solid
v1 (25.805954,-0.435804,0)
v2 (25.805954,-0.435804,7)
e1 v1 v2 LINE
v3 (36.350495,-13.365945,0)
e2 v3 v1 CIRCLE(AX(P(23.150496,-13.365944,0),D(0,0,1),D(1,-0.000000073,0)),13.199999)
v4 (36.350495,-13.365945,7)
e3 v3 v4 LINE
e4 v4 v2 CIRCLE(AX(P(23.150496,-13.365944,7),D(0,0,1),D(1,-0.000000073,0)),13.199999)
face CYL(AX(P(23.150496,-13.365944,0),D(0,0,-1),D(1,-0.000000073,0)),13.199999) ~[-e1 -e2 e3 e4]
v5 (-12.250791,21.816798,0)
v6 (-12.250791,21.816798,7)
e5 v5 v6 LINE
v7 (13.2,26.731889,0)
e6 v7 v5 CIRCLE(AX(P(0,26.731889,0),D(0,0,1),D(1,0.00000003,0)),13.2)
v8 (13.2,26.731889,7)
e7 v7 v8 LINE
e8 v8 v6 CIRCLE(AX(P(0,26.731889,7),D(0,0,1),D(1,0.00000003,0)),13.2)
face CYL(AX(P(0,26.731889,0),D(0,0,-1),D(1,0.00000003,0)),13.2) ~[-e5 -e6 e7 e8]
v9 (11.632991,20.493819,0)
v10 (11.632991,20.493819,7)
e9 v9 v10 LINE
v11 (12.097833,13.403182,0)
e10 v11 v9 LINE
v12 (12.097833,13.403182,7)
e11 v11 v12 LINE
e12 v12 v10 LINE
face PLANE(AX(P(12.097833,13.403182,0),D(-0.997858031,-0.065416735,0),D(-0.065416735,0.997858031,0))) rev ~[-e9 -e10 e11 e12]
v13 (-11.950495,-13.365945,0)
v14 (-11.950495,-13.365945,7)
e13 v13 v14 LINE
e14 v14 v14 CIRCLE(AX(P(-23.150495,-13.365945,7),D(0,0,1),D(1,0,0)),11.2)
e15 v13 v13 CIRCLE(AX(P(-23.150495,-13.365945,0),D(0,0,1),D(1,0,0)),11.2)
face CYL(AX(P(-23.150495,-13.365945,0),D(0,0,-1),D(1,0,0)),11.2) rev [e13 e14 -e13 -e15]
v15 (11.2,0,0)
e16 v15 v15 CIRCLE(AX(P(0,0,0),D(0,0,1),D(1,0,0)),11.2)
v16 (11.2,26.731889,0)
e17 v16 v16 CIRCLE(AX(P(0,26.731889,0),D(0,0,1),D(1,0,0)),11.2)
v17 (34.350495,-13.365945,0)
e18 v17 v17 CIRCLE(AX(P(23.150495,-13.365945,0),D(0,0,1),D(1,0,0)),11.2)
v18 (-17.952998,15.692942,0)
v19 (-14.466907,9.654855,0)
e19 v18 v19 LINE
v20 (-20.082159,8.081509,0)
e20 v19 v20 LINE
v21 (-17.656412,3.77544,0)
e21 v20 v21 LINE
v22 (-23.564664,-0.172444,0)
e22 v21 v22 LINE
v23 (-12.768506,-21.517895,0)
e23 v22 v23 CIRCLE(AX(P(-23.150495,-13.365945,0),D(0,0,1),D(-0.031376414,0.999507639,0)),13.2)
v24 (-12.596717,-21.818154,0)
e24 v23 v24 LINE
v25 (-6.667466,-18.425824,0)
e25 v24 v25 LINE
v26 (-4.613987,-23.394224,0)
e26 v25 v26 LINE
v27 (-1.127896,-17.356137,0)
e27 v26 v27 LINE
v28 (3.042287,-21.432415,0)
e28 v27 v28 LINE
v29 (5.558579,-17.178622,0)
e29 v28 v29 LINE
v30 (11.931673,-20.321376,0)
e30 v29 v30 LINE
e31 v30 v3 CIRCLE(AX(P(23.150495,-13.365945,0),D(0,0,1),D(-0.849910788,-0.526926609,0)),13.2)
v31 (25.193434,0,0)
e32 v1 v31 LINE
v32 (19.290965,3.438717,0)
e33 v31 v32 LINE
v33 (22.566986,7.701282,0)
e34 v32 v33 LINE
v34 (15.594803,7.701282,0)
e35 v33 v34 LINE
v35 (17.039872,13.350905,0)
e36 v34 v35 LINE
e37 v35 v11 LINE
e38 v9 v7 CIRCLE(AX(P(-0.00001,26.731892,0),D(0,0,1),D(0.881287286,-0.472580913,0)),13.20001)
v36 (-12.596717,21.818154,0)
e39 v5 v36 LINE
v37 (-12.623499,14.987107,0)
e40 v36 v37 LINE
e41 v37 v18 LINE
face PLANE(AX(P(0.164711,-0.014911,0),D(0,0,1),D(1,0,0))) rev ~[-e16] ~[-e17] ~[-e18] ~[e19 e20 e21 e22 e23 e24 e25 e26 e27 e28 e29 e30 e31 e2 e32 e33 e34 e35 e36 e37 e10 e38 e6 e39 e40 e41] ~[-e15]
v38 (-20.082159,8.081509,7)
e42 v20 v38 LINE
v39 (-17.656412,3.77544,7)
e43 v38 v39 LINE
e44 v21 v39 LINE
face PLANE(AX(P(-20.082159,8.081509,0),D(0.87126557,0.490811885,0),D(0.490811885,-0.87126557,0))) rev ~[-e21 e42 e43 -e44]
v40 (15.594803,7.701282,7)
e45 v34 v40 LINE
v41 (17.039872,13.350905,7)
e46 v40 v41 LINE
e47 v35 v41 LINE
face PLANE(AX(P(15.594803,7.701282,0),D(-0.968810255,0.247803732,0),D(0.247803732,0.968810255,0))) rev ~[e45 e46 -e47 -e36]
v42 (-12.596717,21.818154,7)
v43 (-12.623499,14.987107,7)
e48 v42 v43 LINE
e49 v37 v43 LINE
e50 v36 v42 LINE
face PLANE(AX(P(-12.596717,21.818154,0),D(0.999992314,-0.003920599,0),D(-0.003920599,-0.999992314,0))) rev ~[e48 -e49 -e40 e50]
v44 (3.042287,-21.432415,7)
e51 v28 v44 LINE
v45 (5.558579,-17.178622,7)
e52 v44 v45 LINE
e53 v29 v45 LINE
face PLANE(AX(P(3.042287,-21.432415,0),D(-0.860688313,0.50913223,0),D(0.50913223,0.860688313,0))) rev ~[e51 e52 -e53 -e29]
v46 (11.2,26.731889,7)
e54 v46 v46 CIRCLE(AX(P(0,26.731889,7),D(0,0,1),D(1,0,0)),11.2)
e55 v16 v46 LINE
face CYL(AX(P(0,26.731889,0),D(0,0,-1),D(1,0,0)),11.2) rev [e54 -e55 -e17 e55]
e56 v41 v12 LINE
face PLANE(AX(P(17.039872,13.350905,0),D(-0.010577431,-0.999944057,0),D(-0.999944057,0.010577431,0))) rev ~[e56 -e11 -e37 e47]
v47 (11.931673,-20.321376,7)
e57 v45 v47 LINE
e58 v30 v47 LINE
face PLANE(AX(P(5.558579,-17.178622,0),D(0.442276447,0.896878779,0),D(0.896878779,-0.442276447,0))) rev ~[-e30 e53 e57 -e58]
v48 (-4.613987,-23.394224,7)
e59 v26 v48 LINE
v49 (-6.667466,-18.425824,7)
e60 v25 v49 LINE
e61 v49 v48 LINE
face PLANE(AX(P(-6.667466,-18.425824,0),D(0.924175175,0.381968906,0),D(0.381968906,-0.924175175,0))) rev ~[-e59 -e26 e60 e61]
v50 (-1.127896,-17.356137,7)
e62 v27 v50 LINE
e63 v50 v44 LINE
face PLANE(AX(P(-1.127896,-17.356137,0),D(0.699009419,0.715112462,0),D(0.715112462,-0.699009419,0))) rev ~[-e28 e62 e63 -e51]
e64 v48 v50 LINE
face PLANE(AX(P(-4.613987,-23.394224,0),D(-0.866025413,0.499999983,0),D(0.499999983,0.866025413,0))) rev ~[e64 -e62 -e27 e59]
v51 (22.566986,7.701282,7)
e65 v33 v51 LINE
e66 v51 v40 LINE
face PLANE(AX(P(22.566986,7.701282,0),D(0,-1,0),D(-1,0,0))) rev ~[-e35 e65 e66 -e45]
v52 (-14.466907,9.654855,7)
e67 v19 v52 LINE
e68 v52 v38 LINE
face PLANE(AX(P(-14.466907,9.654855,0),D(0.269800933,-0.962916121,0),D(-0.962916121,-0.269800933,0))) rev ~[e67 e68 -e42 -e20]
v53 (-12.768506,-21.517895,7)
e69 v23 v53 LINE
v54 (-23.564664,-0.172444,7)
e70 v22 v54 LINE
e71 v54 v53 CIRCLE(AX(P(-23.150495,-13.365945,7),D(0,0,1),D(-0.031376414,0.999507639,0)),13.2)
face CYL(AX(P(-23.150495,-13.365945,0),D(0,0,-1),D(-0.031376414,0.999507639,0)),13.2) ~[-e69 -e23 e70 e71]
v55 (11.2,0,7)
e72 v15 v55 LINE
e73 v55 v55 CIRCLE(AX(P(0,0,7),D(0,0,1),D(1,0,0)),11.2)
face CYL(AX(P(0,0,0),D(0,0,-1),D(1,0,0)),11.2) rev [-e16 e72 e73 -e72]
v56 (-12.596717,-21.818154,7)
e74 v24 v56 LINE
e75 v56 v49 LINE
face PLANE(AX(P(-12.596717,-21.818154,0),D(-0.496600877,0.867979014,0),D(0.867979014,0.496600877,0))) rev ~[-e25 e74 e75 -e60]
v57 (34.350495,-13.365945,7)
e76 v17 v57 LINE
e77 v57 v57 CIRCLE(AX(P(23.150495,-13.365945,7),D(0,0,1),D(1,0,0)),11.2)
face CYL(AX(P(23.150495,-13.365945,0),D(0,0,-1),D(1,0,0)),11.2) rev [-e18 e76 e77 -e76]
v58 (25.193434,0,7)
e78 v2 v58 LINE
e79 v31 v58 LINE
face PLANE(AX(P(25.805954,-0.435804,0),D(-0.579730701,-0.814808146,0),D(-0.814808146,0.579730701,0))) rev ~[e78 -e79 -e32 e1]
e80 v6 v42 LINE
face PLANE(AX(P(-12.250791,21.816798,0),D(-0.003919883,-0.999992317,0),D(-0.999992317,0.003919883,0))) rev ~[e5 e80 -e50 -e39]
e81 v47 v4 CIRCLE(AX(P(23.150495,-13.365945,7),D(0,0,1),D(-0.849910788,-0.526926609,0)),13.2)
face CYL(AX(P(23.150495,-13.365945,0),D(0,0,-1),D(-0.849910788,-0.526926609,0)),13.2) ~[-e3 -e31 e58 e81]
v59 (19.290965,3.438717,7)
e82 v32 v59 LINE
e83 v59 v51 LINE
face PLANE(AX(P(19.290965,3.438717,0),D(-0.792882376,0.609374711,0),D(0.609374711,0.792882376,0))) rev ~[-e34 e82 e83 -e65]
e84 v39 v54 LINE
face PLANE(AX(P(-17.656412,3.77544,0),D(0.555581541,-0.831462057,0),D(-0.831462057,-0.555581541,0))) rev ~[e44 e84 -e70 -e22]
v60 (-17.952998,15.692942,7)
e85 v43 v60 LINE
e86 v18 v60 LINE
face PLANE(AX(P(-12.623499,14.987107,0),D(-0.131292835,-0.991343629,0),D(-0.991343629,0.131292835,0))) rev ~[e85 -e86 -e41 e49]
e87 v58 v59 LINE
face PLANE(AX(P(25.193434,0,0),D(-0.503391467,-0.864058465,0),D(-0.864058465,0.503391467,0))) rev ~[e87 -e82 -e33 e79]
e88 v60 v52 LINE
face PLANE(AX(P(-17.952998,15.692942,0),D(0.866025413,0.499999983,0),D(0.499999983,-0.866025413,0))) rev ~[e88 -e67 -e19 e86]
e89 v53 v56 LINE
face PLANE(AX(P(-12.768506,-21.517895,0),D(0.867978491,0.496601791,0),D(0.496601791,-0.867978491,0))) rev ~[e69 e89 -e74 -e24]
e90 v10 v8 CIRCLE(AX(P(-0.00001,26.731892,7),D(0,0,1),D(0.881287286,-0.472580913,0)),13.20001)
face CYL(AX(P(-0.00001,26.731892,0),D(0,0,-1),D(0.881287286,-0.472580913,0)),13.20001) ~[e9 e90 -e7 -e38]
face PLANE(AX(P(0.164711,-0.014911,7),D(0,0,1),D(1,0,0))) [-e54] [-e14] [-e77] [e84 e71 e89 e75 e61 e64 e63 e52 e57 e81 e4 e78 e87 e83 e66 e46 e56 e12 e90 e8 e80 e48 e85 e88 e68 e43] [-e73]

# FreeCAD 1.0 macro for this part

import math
import FreeCAD as App
import Part
import Sketcher

doc = App.newDocument("Part")
body = doc.addObject("PartDesign::Body", "Body")

sketch1 = body.newObject("Sketcher::SketchObject", "Sketch")
sketch1.AttachmentSupport = (doc.getObject("XY_Plane"), [""])
sketch1.MapMode = "FlatFace"
sketch1.addGeometry([
    Part.LineSegment(App.Vector(12.097833, 13.403182, 0), App.Vector(11.632991, 20.493819, 0)),
    Part.ArcOfCircle(Part.Circle(App.Vector(-0.00001, 26.731892, 0), App.Vector(0, 0, 1), 13.20001), math.radians(-28.20196), math.radians(-0.000012)),
    Part.ArcOfCircle(Part.Circle(App.Vector(0, 26.731889, 0), App.Vector(0, 0, 1), 13.2), math.radians(0.000002), math.radians(201.860951)),
    Part.LineSegment(App.Vector(-12.250791, 21.816798, 0), App.Vector(-12.596717, 21.818154, 0)),
    Part.LineSegment(App.Vector(-12.596717, 21.818154, 0), App.Vector(-12.623499, 14.987107, 0)),
    Part.LineSegment(App.Vector(-12.623499, 14.987107, 0), App.Vector(-17.952998, 15.692942, 0)),
    Part.LineSegment(App.Vector(-17.952998, 15.692942, 0), App.Vector(-14.466907, 9.654855, 0)),
    Part.LineSegment(App.Vector(-14.466907, 9.654855, 0), App.Vector(-20.082159, 8.081509, 0)),
    Part.LineSegment(App.Vector(-20.082159, 8.081509, 0), App.Vector(-17.656412, 3.77544, 0)),
    Part.LineSegment(App.Vector(-17.656412, 3.77544, 0), App.Vector(-23.564664, -0.172444, 0)),
    Part.ArcOfCircle(Part.Circle(App.Vector(-23.150495, -13.365945, 0), App.Vector(0, 0, 1), 13.2), math.radians(91.798031), math.radians(321.860955)),
    Part.LineSegment(App.Vector(-12.768506, -21.517895, 0), App.Vector(-12.596717, -21.818154, 0)),
    Part.LineSegment(App.Vector(-12.596717, -21.818154, 0), App.Vector(-6.667466, -18.425824, 0)),
    Part.LineSegment(App.Vector(-6.667466, -18.425824, 0), App.Vector(-4.613987, -23.394224, 0)),
    Part.LineSegment(App.Vector(-4.613987, -23.394224, 0), App.Vector(-1.127896, -17.356137, 0)),
    Part.LineSegment(App.Vector(-1.127896, -17.356137, 0), App.Vector(3.042287, -21.432415, 0)),
    Part.LineSegment(App.Vector(3.042287, -21.432415, 0), App.Vector(5.558579, -17.178622, 0)),
    Part.LineSegment(App.Vector(5.558579, -17.178622, 0), App.Vector(11.931673, -20.321376, 0)),
    Part.ArcOfCircle(Part.Circle(App.Vector(23.150495, -13.365945, 0), App.Vector(0, 0, 1), 13.2), math.radians(-148.201968), math.radians(-0.000001)),
    Part.ArcOfCircle(Part.Circle(App.Vector(23.150496, -13.365944, 0), App.Vector(0, 0, 1), 13.199999), math.radians(-0.000004), math.radians(78.39455)),
    Part.LineSegment(App.Vector(25.805954, -0.435804, 0), App.Vector(25.193434, 0, 0)),
    Part.LineSegment(App.Vector(25.193434, 0, 0), App.Vector(19.290965, 3.438717, 0)),
    Part.LineSegment(App.Vector(19.290965, 3.438717, 0), App.Vector(22.566986, 7.701282, 0)),
    Part.LineSegment(App.Vector(22.566986, 7.701282, 0), App.Vector(15.594803, 7.701282, 0)),
    Part.LineSegment(App.Vector(15.594803, 7.701282, 0), App.Vector(17.039872, 13.350905, 0)),
    Part.LineSegment(App.Vector(17.039872, 13.350905, 0), App.Vector(12.097833, 13.403182, 0)),
    Part.Circle(App.Vector(-23.150495, -13.365945, 0), App.Vector(0, 0, 1), 11.2),
    Part.Circle(App.Vector(23.150495, -13.365945, 0), App.Vector(0, 0, 1), 11.2),
    Part.Circle(App.Vector(0, 0, 0), App.Vector(0, 0, 1), 11.2),
    Part.Circle(App.Vector(0, 26.731889, 0), App.Vector(0, 0, 1), 11.2),
], False)
sketch1.addConstraint([
    Sketcher.Constraint("Coincident", 0, 2, 1, 1),
    Sketcher.Constraint("Coincident", 1, 2, 2, 1),
    Sketcher.Constraint("Coincident", 2, 2, 3, 1),
    Sketcher.Constraint("Coincident", 3, 2, 4, 1),
    Sketcher.Constraint("Coincident", 4, 2, 5, 1),
    Sketcher.Constraint("Coincident", 5, 2, 6, 1),
    Sketcher.Constraint("Coincident", 6, 2, 7, 1),
    Sketcher.Constraint("Coincident", 7, 2, 8, 1),
    Sketcher.Constraint("Coincident", 8, 2, 9, 1),
    Sketcher.Constraint("Coincident", 9, 2, 10, 1),
    Sketcher.Constraint("Coincident", 10, 2, 11, 1),
    Sketcher.Constraint("Coincident", 11, 2, 12, 1),
    Sketcher.Constraint("Coincident", 12, 2, 13, 1),
    Sketcher.Constraint("Coincident", 13, 2, 14, 1),
    Sketcher.Constraint("Coincident", 14, 2, 15, 1),
    Sketcher.Constraint("Coincident", 15, 2, 16, 1),
    Sketcher.Constraint("Coincident", 16, 2, 17, 1),
    Sketcher.Constraint("Coincident", 17, 2, 18, 1),
    Sketcher.Constraint("Coincident", 18, 2, 19, 1),
    Sketcher.Constraint("Coincident", 19, 2, 20, 1),
    Sketcher.Constraint("Coincident", 20, 2, 21, 1),
    Sketcher.Constraint("Coincident", 21, 2, 22, 1),
    Sketcher.Constraint("Coincident", 22, 2, 23, 1),
    Sketcher.Constraint("Coincident", 23, 2, 24, 1),
    Sketcher.Constraint("Coincident", 24, 2, 25, 1),
    Sketcher.Constraint("Coincident", 25, 2, 0, 1),
    Sketcher.Constraint("Horizontal", 23),
    Sketcher.Constraint("Coincident", 28, 3, -1, 1),
    Sketcher.Constraint("Coincident", 19, 3, 18, 3),
    Sketcher.Constraint("Coincident", 26, 3, 10, 3),
    Sketcher.Constraint("Coincident", 27, 3, 18, 3),
    Sketcher.Constraint("Coincident", 29, 3, 2, 3),
    Sketcher.Constraint("PointOnObject", 2, 3, -2),
    Sketcher.Constraint("PointOnObject", 20, 2, -1),
    Sketcher.Constraint("Diameter", 26, 22.4),
    Sketcher.Constraint("Diameter", 27, 22.4),
    Sketcher.Constraint("Diameter", 28, 22.4),
    Sketcher.Constraint("Diameter", 29, 22.4),
    Sketcher.Constraint("Radius", 2, 13.2),
    Sketcher.Constraint("Radius", 10, 13.2),
    Sketcher.Constraint("Radius", 18, 13.2),
    Sketcher.Constraint("Radius", 1, 13.20001),
    Sketcher.Constraint("DistanceX", 5, 2, -1, 1, 17.952998),
    Sketcher.Constraint("DistanceX", 1, 3, 0, 2, 11.633001),
    Sketcher.Constraint("Distance", 4, 6.8311),
    Sketcher.Constraint("Distance", 12, 6.831099),
    Sketcher.Constraint("Distance", 21, 6.831099),
    Sketcher.Constraint("DistanceY", -1, 1, 2, 2, 21.816798),
    Sketcher.Constraint("DistanceX", 4, 2, -1, 1, 12.623499),
    Sketcher.Constraint("DistanceY", 6, 2, 3, 2, 12.163299),
    Sketcher.Constraint("DistanceY", 10, 3, 9, 2, 13.193501),
    Sketcher.Constraint("DistanceY", 9, 2, 6, 2, 9.827299),
    Sketcher.Constraint("DistanceY", 13, 2, 12, 2, 4.9684),
    Sketcher.Constraint("DistanceY", 12, 2, 16, 2, 1.247202),
    Sketcher.Constraint("DistanceY", 23, 2, 25, 2, 5.7019),
    Sketcher.Constraint("Distance", 3, 0.345929),
    Sketcher.Constraint("Distance", 9, 7.105859),
    Sketcher.Constraint("Distance", 11, 0.345929),
    Sketcher.Constraint("Distance", 17, 7.105859),
    Sketcher.Constraint("DistanceX", 23, 2, 23, 1, 6.972183),
    Sketcher.Constraint("DistanceY", -1, 1, 1, 3, 26.731892),
    Sketcher.Constraint("DistanceY", -1, 1, 2, 3, 26.731889),
    Sketcher.Constraint("DistanceY", -1, 1, 1, 2, 26.731889),
    Sketcher.Constraint("DistanceX", 7, 2, -1, 1, 20.082159),
    Sketcher.Constraint("DistanceY", -1, 1, 7, 2, 8.081509),
    Sketcher.Constraint("DistanceX", 8, 2, -1, 1, 17.656412),
    Sketcher.Constraint("DistanceY", -1, 1, 8, 2, 3.77544),
    Sketcher.Constraint("DistanceX", -1, 1, 16, 2, 5.558579),
    Sketcher.Constraint("DistanceX", -1, 1, 24, 2, 17.039872),
    Sketcher.Constraint("DistanceY", -1, 1, 25, 2, 13.403182),
    Sketcher.Constraint("DistanceX", 10, 3, 18, 3, 46.300991),
    Sketcher.Constraint("DistanceY", 4, 2, 2, 2, 6.829691),
    Sketcher.Constraint("DistanceY", 5, 2, 3, 2, 6.125212),
    Sketcher.Constraint("DistanceX", 6, 2, 4, 2, 1.843408),
    Sketcher.Constraint("DistanceX", 26, 3, 10, 2, 10.381989),
    Sketcher.Constraint("DistanceX", 10, 2, 11, 2, 0.171789),
    Sketcher.Constraint("DistanceX", 11, 2, 12, 2, 5.929251),
    Sketcher.Constraint("DistanceX", 12, 2, 13, 2, 2.053479),
    Sketcher.Constraint("DistanceX", 12, 2, 14, 2, 5.53957),
    Sketcher.Constraint("DistanceY", 10, 2, 14, 2, 4.161758),
    Sketcher.Constraint("DistanceY", 13, 2, 15, 2, 1.961809),
    Sketcher.Constraint("DistanceX", 15, 2, 16, 2, 2.516292),
    Sketcher.Constraint("DistanceY", 15, 2, 17, 2, 1.111039),
    Sketcher.Constraint("DistanceY", 17, 2, 18, 2, 6.955431),
    Sketcher.Constraint("DistanceX", 19, 3, 19, 2, 2.655458),
    Sketcher.Constraint("DistanceX", 20, 2, 19, 2, 0.61252),
    Sketcher.Constraint("DistanceX", 21, 2, 20, 2, 5.902469),
    Sketcher.Constraint("DistanceX", 21, 2, 22, 2, 3.276021),
    Sketcher.Constraint("DistanceX", 25, 2, 24, 2, 4.942039),
    Sketcher.Constraint("Distance", 24, 5.831506),
])
pad1 = body.newObject("PartDesign::Pad", "Pad")
pad1.Profile = sketch1
pad1.Length = 7

doc.recompute()
